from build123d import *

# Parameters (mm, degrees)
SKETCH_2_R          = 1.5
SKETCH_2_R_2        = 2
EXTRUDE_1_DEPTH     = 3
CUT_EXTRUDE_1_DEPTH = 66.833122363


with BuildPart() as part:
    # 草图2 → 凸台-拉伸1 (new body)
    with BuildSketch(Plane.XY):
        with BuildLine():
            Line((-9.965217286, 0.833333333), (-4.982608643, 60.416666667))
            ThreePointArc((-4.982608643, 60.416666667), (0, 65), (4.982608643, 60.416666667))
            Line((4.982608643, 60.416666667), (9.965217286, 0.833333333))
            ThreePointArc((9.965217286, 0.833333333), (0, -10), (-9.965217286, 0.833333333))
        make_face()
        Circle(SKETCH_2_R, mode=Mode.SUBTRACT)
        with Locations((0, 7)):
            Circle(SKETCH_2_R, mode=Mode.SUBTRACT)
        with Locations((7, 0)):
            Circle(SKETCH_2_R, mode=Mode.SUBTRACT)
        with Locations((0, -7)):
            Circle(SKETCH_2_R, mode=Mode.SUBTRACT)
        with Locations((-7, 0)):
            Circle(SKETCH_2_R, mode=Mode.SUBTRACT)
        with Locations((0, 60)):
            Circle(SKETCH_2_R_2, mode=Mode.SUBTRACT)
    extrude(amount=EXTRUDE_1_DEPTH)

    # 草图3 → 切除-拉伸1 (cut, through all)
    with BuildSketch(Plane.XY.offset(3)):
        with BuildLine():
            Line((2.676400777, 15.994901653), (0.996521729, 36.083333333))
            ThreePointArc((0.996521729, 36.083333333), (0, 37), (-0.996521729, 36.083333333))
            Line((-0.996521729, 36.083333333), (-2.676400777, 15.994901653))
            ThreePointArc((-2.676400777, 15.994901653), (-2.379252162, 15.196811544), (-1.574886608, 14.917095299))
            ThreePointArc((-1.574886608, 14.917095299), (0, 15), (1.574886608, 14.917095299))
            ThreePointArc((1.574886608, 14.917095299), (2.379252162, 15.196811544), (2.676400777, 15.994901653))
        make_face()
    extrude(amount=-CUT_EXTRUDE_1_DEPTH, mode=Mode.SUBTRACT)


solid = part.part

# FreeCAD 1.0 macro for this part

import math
import FreeCAD as App
import Part
import Sketcher

V = App.Vector

doc = App.newDocument("Part")
params = doc.addObject("Spreadsheet::Sheet", "Params")
for row, (alias, value) in enumerate([
    ("sketch1_diameter", "3 mm"),
    ("sketch1_diameter2", "4 mm"),
    ("sketch1_radius", "10 mm"),
    ("sketch1_radius2", "5 mm"),
    ("pad1_length", "3 mm"),
    ("sketch2_radius", "1 mm"),
    ("sketch2_radius2", "15 mm"),
], start=1):
    params.set(f"A{row}", alias)
    params.set(f"B{row}", "=" + value)
    params.setAlias(f"B{row}", alias)

body = doc.addObject("PartDesign::Body", "Body")

# Sketch on XY plane
sketch1 = body.newObject("Sketcher::SketchObject", "Sketch")
sketch1.AttachmentSupport = (doc.getObject("XY_Plane"), [""])
sketch1.MapMode = "FlatFace"
sketch1.addGeometry([
    Part.LineSegment(V(-5, 60.4, 0), V(-10, 0.8, 0)),  # 0
    Part.ArcOfCircle(Part.Circle(V(0, 0, 0), V(0, 0, 1), 10), math.radians(175), math.radians(365)),  # 1
    Part.LineSegment(V(10, 0.8, 0), V(5, 60.4, 0)),  # 2
    Part.ArcOfCircle(Part.Circle(V(0, 60, 0), V(0, 0, 1), 5), math.radians(5), math.radians(175)),  # 3
    Part.Circle(V(7, 0, 0), V(0, 0, 1), 1.5),  # 4
    Part.Circle(V(0, -7, 0), V(0, 0, 1), 1.5),  # 5
    Part.Circle(V(0, 0, 0), V(0, 0, 1), 1.5),  # 6
    Part.Circle(V(0, 7, 0), V(0, 0, 1), 1.5),  # 7
    Part.Circle(V(-7, 0, 0), V(0, 0, 1), 1.5),  # 8
    Part.Circle(V(0, 60, 0), V(0, 0, 1), 2),  # 9
], False)
sketch1.addConstraint([
    Sketcher.Constraint("Tangent", 0, 2, 1, 1),
    Sketcher.Constraint("Tangent", 1, 2, 2, 1),
    Sketcher.Constraint("Tangent", 2, 2, 3, 1),
    Sketcher.Constraint("Tangent", 3, 2, 0, 1),
    Sketcher.Constraint("Coincident", 1, 3, -1, 1),
    Sketcher.Constraint("Coincident", 6, 3, -1, 1),
    Sketcher.Constraint("Coincident", 9, 3, 3, 3),
    Sketcher.Constraint("Equal", 4, 5),
    Sketcher.Constraint("Equal", 5, 6),
    Sketcher.Constraint("Equal", 6, 7),
    Sketcher.Constraint("Equal", 7, 8),
    Sketcher.Constraint("Symmetric", 5, 3, 7, 3, -1, 1),
    Sketcher.Constraint("Symmetric", 4, 3, 8, 3, -1, 1),
    Sketcher.Constraint("PointOnObject", 3, 3, -2),
    Sketcher.Constraint("PointOnObject", 4, 3, -1),
    Sketcher.Constraint("PointOnObject", 5, 3, -2),
    Sketcher.Constraint("Diameter", 4, 3.0),
    Sketcher.Constraint("Diameter", 9, 4.0),
    Sketcher.Constraint("Radius", 1, 10.0),
    Sketcher.Constraint("Radius", 3, 5.0),
    Sketcher.Constraint("DistanceY", -1, 1, 3, 3, 60.0),
    Sketcher.Constraint("DistanceX", -1, 1, 4, 3, 7.0),
    Sketcher.Constraint("DistanceY", 5, 3, -1, 1, 7.0),
])
sketch1.setExpression("Constraints[16]", "Params.sketch1_diameter")
sketch1.setExpression("Constraints[17]", "Params.sketch1_diameter2")
sketch1.setExpression("Constraints[18]", "Params.sketch1_radius")
sketch1.setExpression("Constraints[19]", "Params.sketch1_radius2")
pad1 = body.newObject("PartDesign::Pad", "Pad")
pad1.Profile = sketch1
pad1.setExpression("Length", "Params.pad1_length")

# Sketch on XY plane
sketch2 = body.newObject("Sketcher::SketchObject", "Sketch001")
sketch2.AttachmentSupport = (doc.getObject("XY_Plane"), [""])
sketch2.MapMode = "FlatFace"
sketch2.AttachmentOffset = App.Placement(V(0, 0, 3), App.Rotation())
sketch2.addGeometry([
    Part.LineSegment(V(2.7, 16, 0), V(1, 36.1, 0)),  # 0
    Part.ArcOfCircle(Part.Circle(V(0, 36, 0), V(0, 0, 1), 1), math.radians(5), math.radians(175)),  # 1
    Part.LineSegment(V(-1, 36.1, 0), V(-2.7, 16, 0)),  # 2
    Part.ArcOfCircle(Part.Circle(V(-1.7, 15.9, 0), V(0, 0, 1), 1), math.radians(175), math.radians(276)),  # 3
    Part.ArcOfCircle(Part.Circle(V(0, 0, 0), V(0, 0, 1), 15), math.radians(83.97), math.radians(96.03)),  # 4
    Part.ArcOfCircle(Part.Circle(V(1.7, 15.9, 0), V(0, 0, 1), 1), math.radians(-96), math.radians(5)),  # 5
], False)
sketch2.addConstraint([
    Sketcher.Constraint("Tangent", 0, 2, 1, 1),
    Sketcher.Constraint("Tangent", 1, 2, 2, 1),
    Sketcher.Constraint("Tangent", 2, 2, 3, 1),
    Sketcher.Constraint("Tangent", 3, 2, 4, 2),
    Sketcher.Constraint("Tangent", 4, 1, 5, 1),
    Sketcher.Constraint("Tangent", 5, 2, 0, 1),
    Sketcher.Constraint("Coincident", 4, 3, -1, 1),
    Sketcher.Constraint("Equal", 1, 3),
    Sketcher.Constraint("Equal", 3, 5),
    Sketcher.Constraint("Symmetric", 0, 2, 1, 2, -2),
    Sketcher.Constraint("Radius", 1, 1.0),
    Sketcher.Constraint("Radius", 4, 15.0),
    Sketcher.Constraint("DistanceY", -1, 1, 1, 3, 36.0),
    Sketcher.Constraint("DistanceX", 2, 2, -1, 1, 2.676401),
])
sketch2.setExpression("Constraints[10]", "Params.sketch2_radius")
sketch2.setExpression("Constraints[11]", "Params.sketch2_radius2")
pocket1 = body.newObject("PartDesign::Pocket", "Pocket")
pocket1.Profile = sketch2
pocket1.Type = "ThroughAll"

doc.recompute()
